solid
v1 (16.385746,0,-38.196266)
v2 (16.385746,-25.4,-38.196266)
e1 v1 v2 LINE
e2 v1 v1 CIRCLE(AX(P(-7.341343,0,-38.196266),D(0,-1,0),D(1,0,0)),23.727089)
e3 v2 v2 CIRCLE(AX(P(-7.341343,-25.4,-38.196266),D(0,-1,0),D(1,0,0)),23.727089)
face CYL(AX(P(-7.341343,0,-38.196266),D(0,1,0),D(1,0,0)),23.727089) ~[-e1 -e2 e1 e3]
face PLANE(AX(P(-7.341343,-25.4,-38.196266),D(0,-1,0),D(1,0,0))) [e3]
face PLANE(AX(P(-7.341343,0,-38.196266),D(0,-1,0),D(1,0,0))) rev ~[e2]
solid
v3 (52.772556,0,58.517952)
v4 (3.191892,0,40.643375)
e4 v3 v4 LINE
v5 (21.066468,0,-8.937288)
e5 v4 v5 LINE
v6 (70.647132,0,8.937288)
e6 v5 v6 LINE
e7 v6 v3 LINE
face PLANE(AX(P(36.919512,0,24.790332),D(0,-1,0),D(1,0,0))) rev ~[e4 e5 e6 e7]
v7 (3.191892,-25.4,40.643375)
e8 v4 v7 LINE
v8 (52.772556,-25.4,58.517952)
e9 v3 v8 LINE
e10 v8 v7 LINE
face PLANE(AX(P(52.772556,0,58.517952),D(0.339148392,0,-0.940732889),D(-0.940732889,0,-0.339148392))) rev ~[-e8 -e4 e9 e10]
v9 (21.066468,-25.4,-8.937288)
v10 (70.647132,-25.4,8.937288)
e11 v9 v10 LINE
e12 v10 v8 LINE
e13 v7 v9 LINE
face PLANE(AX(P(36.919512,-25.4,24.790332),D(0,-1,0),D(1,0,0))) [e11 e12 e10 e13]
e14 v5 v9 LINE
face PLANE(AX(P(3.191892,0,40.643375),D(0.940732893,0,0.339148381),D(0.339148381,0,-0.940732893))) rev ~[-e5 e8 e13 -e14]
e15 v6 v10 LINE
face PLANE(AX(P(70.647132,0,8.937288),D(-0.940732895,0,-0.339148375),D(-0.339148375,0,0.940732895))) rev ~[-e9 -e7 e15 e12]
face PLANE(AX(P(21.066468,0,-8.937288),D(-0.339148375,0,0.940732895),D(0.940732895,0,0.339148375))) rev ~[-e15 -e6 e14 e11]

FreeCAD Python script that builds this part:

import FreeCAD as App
import Part
import Sketcher


def add_polygon(sketch, points):
    """Adds a closed chain of lines whose ends are joined by coincident constraints."""
    first, n = sketch.GeometryCount, len(points)
    for a, b in zip(points, points[1:] + points[:1]):
        sketch.addGeometry(Part.LineSegment(App.Vector(*a, 0), App.Vector(*b, 0)), False)
    for i in range(n):
        sketch.addConstraint(Sketcher.Constraint("Coincident", first + i, 2, first + (i + 1) % n, 1))

doc = App.newDocument("Part")
params = doc.addObject("Spreadsheet::Sheet", "Params")
for row, (alias, value) in enumerate([
    ("pad1_length", "1 in"),
], start=1):
    params.set(f"A{row}", alias)
    params.set(f"B{row}", "=" + value)
    params.setAlias(f"B{row}", alias)

body = doc.addObject("PartDesign::Body", "Body")
body.AllowCompound = True

# Sketch on XZ plane
sketch1 = body.newObject("Sketcher::SketchObject", "Sketch")
sketch1.AttachmentSupport = (doc.getObject("XZ_Plane"), [""])
sketch1.MapMode = "FlatFace"
sketch1.addGeometry(Part.Circle(App.Vector(-7, -38, 0), App.Vector(0, 0, 1), 24), False)  # 0
add_polygon(sketch1, [(21, -9), (71, 9), (53, 59), (3, 41)])  # lines 1-4
sketch1.addConstraint(Sketcher.Constraint("Perpendicular", 1, 2))
sketch1.addConstraint(Sketcher.Constraint("Perpendicular", 2, 3))
sketch1.addConstraint(Sketcher.Constraint("Perpendicular", 3, 4))
sketch1.addConstraint(Sketcher.Constraint("Equal", 1, 2))
sketch1.addConstraint(Sketcher.Constraint("Diameter", 0, 47.454178))
sketch1.addConstraint(Sketcher.Constraint("DistanceX", 0, 3, 2, 2, 60.113899))
sketch1.addConstraint(Sketcher.Constraint("DistanceX", -1, 1, 1, 2, 70.647132))
sketch1.addConstraint(Sketcher.Constraint("DistanceX", -1, 1, 4, 2, 21.066468))
sketch1.addConstraint(Sketcher.Constraint("DistanceY", 0, 3, 2, 2, 96.714218))
sketch1.addConstraint(Sketcher.Constraint("DistanceX", 3, 2, 1, 2, 67.45524))
sketch1.addConstraint(Sketcher.Constraint("DistanceY", 0, 3, -1, 1, 38.196266))
pad1 = body.newObject("PartDesign::Pad", "Pad")
pad1.Profile = sketch1
pad1.setExpression("Length", "Params.pad1_length")

doc.recompute()
